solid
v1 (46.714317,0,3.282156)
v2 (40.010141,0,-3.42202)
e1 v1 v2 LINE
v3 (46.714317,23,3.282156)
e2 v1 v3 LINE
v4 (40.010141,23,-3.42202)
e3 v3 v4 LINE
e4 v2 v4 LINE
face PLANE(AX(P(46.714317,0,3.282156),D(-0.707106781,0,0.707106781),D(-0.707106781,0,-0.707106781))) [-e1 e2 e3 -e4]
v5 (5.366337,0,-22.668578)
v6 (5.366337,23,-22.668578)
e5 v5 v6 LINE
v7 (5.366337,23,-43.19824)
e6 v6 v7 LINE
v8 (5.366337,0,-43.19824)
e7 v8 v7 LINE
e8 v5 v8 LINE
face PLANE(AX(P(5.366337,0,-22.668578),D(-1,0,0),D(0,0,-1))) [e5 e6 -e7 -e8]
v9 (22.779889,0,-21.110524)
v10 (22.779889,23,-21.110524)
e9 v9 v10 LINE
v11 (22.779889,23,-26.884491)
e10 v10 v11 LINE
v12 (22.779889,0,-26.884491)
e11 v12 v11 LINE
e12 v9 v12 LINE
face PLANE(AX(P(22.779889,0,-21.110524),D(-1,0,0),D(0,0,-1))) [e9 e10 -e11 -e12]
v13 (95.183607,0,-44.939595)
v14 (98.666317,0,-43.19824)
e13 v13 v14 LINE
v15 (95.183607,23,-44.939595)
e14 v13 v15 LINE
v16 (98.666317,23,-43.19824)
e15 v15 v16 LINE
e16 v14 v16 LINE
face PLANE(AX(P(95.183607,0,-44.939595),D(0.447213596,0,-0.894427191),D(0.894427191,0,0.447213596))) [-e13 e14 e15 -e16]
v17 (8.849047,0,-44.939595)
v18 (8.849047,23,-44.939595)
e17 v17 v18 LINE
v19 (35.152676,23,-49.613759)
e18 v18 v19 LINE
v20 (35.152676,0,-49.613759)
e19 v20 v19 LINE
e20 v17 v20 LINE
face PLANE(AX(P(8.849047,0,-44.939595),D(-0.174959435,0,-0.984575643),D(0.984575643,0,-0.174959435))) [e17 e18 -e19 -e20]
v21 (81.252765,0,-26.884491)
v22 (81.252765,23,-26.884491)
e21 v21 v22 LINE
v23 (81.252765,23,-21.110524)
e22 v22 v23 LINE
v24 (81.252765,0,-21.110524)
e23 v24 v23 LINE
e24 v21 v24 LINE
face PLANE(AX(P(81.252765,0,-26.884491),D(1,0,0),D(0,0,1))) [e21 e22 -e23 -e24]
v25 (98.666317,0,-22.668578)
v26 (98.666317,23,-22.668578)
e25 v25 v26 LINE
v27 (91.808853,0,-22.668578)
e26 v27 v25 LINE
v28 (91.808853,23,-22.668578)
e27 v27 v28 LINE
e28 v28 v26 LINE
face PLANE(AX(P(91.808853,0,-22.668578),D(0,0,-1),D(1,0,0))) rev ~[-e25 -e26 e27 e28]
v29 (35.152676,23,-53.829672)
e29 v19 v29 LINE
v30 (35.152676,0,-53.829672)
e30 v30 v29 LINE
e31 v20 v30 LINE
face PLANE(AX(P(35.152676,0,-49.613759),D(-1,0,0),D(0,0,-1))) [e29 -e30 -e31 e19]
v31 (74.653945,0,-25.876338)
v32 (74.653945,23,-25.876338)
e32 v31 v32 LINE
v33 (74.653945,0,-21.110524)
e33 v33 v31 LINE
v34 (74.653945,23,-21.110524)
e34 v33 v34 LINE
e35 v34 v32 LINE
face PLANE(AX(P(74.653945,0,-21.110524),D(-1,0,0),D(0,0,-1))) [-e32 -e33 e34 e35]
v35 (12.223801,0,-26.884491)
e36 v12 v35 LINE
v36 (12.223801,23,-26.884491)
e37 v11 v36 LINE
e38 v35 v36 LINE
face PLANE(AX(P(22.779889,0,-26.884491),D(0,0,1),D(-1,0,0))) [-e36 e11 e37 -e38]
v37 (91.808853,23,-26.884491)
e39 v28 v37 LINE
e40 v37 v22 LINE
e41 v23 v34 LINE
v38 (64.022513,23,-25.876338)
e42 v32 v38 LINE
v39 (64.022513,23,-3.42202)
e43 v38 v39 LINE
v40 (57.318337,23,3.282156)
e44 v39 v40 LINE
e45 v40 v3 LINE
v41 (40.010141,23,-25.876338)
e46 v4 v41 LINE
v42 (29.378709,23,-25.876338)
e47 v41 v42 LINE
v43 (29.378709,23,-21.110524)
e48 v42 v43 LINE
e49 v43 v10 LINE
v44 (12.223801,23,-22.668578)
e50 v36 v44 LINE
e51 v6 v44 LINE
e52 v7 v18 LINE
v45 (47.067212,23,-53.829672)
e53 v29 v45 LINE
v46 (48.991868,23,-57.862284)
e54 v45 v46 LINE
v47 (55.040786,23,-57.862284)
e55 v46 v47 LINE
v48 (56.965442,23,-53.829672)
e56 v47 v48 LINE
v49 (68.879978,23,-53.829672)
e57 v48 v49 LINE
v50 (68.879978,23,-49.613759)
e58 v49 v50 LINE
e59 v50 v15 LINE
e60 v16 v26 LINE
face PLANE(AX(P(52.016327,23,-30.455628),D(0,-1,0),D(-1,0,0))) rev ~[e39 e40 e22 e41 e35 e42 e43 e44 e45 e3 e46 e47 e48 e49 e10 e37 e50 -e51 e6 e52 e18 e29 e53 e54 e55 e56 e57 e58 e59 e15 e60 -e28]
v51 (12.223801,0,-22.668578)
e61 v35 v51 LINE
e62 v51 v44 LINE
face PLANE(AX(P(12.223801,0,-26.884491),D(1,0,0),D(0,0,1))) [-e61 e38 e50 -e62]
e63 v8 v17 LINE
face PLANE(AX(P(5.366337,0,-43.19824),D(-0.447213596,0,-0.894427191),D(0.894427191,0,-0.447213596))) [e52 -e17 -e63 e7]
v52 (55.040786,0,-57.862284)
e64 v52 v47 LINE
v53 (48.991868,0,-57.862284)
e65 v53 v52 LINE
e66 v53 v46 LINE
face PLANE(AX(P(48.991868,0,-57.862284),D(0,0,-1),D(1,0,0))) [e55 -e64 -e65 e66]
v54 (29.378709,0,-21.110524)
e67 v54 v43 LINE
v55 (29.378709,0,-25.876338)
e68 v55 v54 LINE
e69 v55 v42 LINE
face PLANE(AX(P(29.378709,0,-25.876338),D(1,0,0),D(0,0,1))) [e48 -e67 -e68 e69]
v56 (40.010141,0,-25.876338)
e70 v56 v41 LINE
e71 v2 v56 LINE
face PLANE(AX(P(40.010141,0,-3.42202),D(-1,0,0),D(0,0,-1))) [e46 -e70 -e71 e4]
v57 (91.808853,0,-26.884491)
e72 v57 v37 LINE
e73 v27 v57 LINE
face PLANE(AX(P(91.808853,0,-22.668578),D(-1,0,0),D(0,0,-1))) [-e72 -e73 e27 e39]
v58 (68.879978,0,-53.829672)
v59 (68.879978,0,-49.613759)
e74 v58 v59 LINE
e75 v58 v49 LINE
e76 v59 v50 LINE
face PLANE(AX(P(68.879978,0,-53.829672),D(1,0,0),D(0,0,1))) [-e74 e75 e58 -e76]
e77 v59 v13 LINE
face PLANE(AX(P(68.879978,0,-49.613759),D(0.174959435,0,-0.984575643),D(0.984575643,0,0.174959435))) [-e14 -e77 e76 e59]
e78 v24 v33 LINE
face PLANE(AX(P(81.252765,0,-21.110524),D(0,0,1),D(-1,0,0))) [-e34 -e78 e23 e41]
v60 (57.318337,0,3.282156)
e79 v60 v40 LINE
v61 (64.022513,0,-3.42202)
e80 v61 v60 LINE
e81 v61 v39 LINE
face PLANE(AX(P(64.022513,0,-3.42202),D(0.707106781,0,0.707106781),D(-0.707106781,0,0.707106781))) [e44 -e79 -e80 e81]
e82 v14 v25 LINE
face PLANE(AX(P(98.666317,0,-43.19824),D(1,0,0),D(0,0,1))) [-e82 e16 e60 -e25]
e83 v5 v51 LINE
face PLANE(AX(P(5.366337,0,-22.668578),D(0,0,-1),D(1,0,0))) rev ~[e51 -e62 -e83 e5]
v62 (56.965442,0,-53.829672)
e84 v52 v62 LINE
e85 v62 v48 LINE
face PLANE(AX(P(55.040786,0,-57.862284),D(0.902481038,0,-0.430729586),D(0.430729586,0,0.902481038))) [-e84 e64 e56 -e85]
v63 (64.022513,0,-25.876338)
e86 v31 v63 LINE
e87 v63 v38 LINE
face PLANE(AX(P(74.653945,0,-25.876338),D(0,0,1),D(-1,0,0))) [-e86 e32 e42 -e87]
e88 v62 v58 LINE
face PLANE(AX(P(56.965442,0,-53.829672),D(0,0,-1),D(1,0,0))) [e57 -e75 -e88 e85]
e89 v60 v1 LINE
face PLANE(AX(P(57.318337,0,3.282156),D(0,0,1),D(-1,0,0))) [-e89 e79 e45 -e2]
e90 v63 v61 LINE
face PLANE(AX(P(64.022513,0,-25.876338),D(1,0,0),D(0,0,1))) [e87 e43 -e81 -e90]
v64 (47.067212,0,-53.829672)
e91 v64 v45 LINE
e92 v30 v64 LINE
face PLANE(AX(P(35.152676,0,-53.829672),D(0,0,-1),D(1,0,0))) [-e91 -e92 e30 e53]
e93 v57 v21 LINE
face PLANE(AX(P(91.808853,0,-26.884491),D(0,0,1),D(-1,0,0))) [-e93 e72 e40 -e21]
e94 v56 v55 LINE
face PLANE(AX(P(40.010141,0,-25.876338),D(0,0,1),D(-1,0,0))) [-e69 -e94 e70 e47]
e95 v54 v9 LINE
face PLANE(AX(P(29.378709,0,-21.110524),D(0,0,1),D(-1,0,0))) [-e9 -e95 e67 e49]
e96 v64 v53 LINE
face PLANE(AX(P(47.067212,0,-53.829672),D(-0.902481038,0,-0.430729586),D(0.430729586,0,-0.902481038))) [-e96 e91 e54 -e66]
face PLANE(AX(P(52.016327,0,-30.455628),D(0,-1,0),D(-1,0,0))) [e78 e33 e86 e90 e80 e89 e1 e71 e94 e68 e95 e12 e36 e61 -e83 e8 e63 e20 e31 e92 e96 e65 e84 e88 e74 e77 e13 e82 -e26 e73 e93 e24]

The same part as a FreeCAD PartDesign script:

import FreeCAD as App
import Part
import Sketcher
from FreeCAD import Vector
Q = App.Units.Quantity

doc = App.newDocument("Part")
params = doc.addObject("Spreadsheet::Sheet", "Params")
for row, (alias, value) in enumerate([
    ("pad1_length", "23 mm"),
], start=1):
    params.set(f"A{row}", alias)
    params.set(f"B{row}", "=" + value)
    params.setAlias(f"B{row}", alias)

body = doc.addObject("PartDesign::Body", "Body")

# Sketch on XZ plane
sketch1 = doc.addObject("Sketcher::SketchObject", "Sketch")
body.addObject(sketch1)
sketch1.AttachmentSupport = (doc.XZ_Plane, [""])
sketch1.MapMode = "FlatFace"
sketch1.addGeometry([
    Part.LineSegment(Vector(8.8, -44.9, 0), Vector(5.4, -43.2, 0)),  # 0
    Part.LineSegment(Vector(5.4, -43.2, 0), Vector(5.4, -22.7, 0)),  # 1
    Part.LineSegment(Vector(5.4, -22.7, 0), Vector(12.2, -22.7, 0)),  # 2
    Part.LineSegment(Vector(12.2, -22.7, 0), Vector(12.2, -26.9, 0)),  # 3
    Part.LineSegment(Vector(12.2, -26.9, 0), Vector(22.8, -26.9, 0)),  # 4
    Part.LineSegment(Vector(22.8, -26.9, 0), Vector(22.8, -21.1, 0)),  # 5
    Part.LineSegment(Vector(22.8, -21.1, 0), Vector(29.4, -21.1, 0)),  # 6
    Part.LineSegment(Vector(29.4, -21.1, 0), Vector(29.4, -25.9, 0)),  # 7
    Part.LineSegment(Vector(29.4, -25.9, 0), Vector(40, -25.9, 0)),  # 8
    Part.LineSegment(Vector(40, -25.9, 0), Vector(40, -3.4, 0)),  # 9
    Part.LineSegment(Vector(40, -3.4, 0), Vector(46.7, 3.3, 0)),  # 10
    Part.LineSegment(Vector(46.7, 3.3, 0), Vector(57.3, 3.3, 0)),  # 11
    Part.LineSegment(Vector(57.3, 3.3, 0), Vector(64, -3.4, 0)),  # 12
    Part.LineSegment(Vector(64, -3.4, 0), Vector(64, -25.9, 0)),  # 13
    Part.LineSegment(Vector(64, -25.9, 0), Vector(74.7, -25.9, 0)),  # 14
    Part.LineSegment(Vector(74.7, -25.9, 0), Vector(74.7, -21.1, 0)),  # 15
    Part.LineSegment(Vector(74.7, -21.1, 0), Vector(81.3, -21.1, 0)),  # 16
    Part.LineSegment(Vector(81.3, -21.1, 0), Vector(81.3, -26.9, 0)),  # 17
    Part.LineSegment(Vector(81.3, -26.9, 0), Vector(91.8, -26.9, 0)),  # 18
    Part.LineSegment(Vector(91.8, -26.9, 0), Vector(91.8, -22.7, 0)),  # 19
    Part.LineSegment(Vector(91.8, -22.7, 0), Vector(98.7, -22.7, 0)),  # 20
    Part.LineSegment(Vector(98.7, -22.7, 0), Vector(98.7, -43.2, 0)),  # 21
    Part.LineSegment(Vector(98.7, -43.2, 0), Vector(95.2, -44.9, 0)),  # 22
    Part.LineSegment(Vector(95.2, -44.9, 0), Vector(68.9, -49.6, 0)),  # 23
    Part.LineSegment(Vector(68.9, -49.6, 0), Vector(68.9, -53.8, 0)),  # 24
    Part.LineSegment(Vector(68.9, -53.8, 0), Vector(57, -53.8, 0)),  # 25
    Part.LineSegment(Vector(57, -53.8, 0), Vector(55, -57.9, 0)),  # 26
    Part.LineSegment(Vector(55, -57.9, 0), Vector(49, -57.9, 0)),  # 27
    Part.LineSegment(Vector(49, -57.9, 0), Vector(47.1, -53.8, 0)),  # 28
    Part.LineSegment(Vector(47.1, -53.8, 0), Vector(35.2, -53.8, 0)),  # 29
    Part.LineSegment(Vector(35.2, -53.8, 0), Vector(35.2, -49.6, 0)),  # 30
    Part.LineSegment(Vector(35.2, -49.6, 0), Vector(8.8, -44.9, 0)),  # 31
], False)
sketch1.addConstraint([
    Sketcher.Constraint("Coincident", 0, 2, 1, 1),
    Sketcher.Constraint("Coincident", 1, 2, 2, 1),
    Sketcher.Constraint("Coincident", 2, 2, 3, 1),
    Sketcher.Constraint("Coincident", 3, 2, 4, 1),
    Sketcher.Constraint("Coincident", 4, 2, 5, 1),
    Sketcher.Constraint("Coincident", 5, 2, 6, 1),
    Sketcher.Constraint("Coincident", 6, 2, 7, 1),
    Sketcher.Constraint("Coincident", 7, 2, 8, 1),
    Sketcher.Constraint("Coincident", 8, 2, 9, 1),
    Sketcher.Constraint("Coincident", 9, 2, 10, 1),
    Sketcher.Constraint("Coincident", 10, 2, 11, 1),
    Sketcher.Constraint("Coincident", 11, 2, 12, 1),
    Sketcher.Constraint("Coincident", 12, 2, 13, 1),
    Sketcher.Constraint("Coincident", 13, 2, 14, 1),
    Sketcher.Constraint("Coincident", 14, 2, 15, 1),
    Sketcher.Constraint("Coincident", 15, 2, 16, 1),
    Sketcher.Constraint("Coincident", 16, 2, 17, 1),
    Sketcher.Constraint("Coincident", 17, 2, 18, 1),
    Sketcher.Constraint("Coincident", 18, 2, 19, 1),
    Sketcher.Constraint("Coincident", 19, 2, 20, 1),
    Sketcher.Constraint("Coincident", 20, 2, 21, 1),
    Sketcher.Constraint("Coincident", 21, 2, 22, 1),
    Sketcher.Constraint("Coincident", 22, 2, 23, 1),
    Sketcher.Constraint("Coincident", 23, 2, 24, 1),
    Sketcher.Constraint("Coincident", 24, 2, 25, 1),
    Sketcher.Constraint("Coincident", 25, 2, 26, 1),
    Sketcher.Constraint("Coincident", 26, 2, 27, 1),
    Sketcher.Constraint("Coincident", 27, 2, 28, 1),
    Sketcher.Constraint("Coincident", 28, 2, 29, 1),
    Sketcher.Constraint("Coincident", 29, 2, 30, 1),
    Sketcher.Constraint("Coincident", 30, 2, 31, 1),
    Sketcher.Constraint("Coincident", 31, 2, 0, 1),
    Sketcher.Constraint("Vertical", 1),
    Sketcher.Constraint("Horizontal", 2),
    Sketcher.Constraint("Vertical", 3),
    Sketcher.Constraint("Horizontal", 4),
    Sketcher.Constraint("Vertical", 5),
    Sketcher.Constraint("Horizontal", 6),
    Sketcher.Constraint("Vertical", 7),
    Sketcher.Constraint("Horizontal", 8),
    Sketcher.Constraint("Vertical", 9),
    Sketcher.Constraint("Horizontal", 11),
    Sketcher.Constraint("Vertical", 13),
    Sketcher.Constraint("Horizontal", 14),
    Sketcher.Constraint("Vertical", 15),
    Sketcher.Constraint("Horizontal", 16),
    Sketcher.Constraint("Vertical", 17),
    Sketcher.Constraint("Horizontal", 18),
    Sketcher.Constraint("Vertical", 19),
    Sketcher.Constraint("Horizontal", 20),
    Sketcher.Constraint("Vertical", 21),
    Sketcher.Constraint("Vertical", 24),
    Sketcher.Constraint("Horizontal", 25),
    Sketcher.Constraint("Horizontal", 27),
    Sketcher.Constraint("Horizontal", 29),
    Sketcher.Constraint("Vertical", 30),
    Sketcher.Constraint("Perpendicular", 10, 12),
    Sketcher.Constraint("Horizontal", 9, 2, 12, 2),
    Sketcher.Constraint("Horizontal", 8, 2, 13, 2),
    Sketcher.Constraint("Horizontal", 6, 2, 15, 2),
    Sketcher.Constraint("Horizontal", 4, 2, 17, 2),
    Sketcher.Constraint("Horizontal", 2, 2, 19, 2),
    Sketcher.Constraint("Horizontal", 0, 2, 21, 2),
    Sketcher.Constraint("Horizontal", 25, 2, 28, 2),
    Sketcher.Constraint("Horizontal", 23, 2, 30, 2),
    Sketcher.Constraint("Horizontal", 22, 2, 31, 2),
    Sketcher.Constraint("Equal", 8, 14),
    Sketcher.Constraint("Equal", 6, 16),
    Sketcher.Constraint("Equal", 4, 18),
    Sketcher.Constraint("Equal", 2, 20),
    Sketcher.Constraint("Equal", 25, 29),
    Sketcher.Constraint("Equal", 19, 24),
    Sketcher.Constraint("Equal", 10, 12),
    Sketcher.Constraint("Equal", 0, 22),
    Sketcher.Constraint("Equal", 26, 28),
    Sketcher.Constraint("Equal", 23, 31),
    Sketcher.Constraint("Distance", 23, Q("26.715702 mm")),
    Sketcher.Constraint("DistanceX", 6, 1, 6, 2, Q("6.59882 mm")),
    Sketcher.Constraint("DistanceX", 8, 1, 8, 2, Q("10.631432 mm")),
    Sketcher.Constraint("DistanceX", 11, 1, 11, 2, Q("10.604019 mm")),
    Sketcher.Constraint("DistanceX", 27, 2, 27, 1, Q("6.048918 mm")),
    Sketcher.Constraint("DistanceY", 1, 1, 1, 2, Q("20.529662 mm")),
    Sketcher.Constraint("DistanceX", -1, 1, 2, 2, Q("12.223801 mm")),
    Sketcher.Constraint("DistanceX", 8, 2, 25, 2, Q("16.955301 mm")),
    Sketcher.Constraint("Distance", 0, Q("3.893789 mm")),
    Sketcher.Constraint("DistanceX", 2, 1, 2, 2, Q("6.857465 mm")),
    Sketcher.Constraint("DistanceX", 4, 1, 4, 2, Q("10.556088 mm")),
    Sketcher.Constraint("DistanceX", 25, 2, 25, 1, Q("11.914536 mm")),
    Sketcher.Constraint("DistanceY", 3, 2, 3, 1, Q("4.215913 mm")),
    Sketcher.Constraint("DistanceY", 5, 1, 5, 2, Q("5.773967 mm")),
    Sketcher.Constraint("DistanceY", 7, 2, 7, 1, Q("4.765814 mm")),
    Sketcher.Constraint("DistanceY", 9, 1, 9, 2, Q("22.454318 mm")),
    Sketcher.Constraint("DistanceY", 0, 2, -1, 1, Q("43.19824 mm")),
    Sketcher.Constraint("DistanceY", 23, 2, -1, 1, Q("49.613759 mm")),
    Sketcher.Constraint("DistanceX", -1, 1, 28, 2, Q("47.067212 mm")),
    Sketcher.Constraint("Distance", 26, Q("4.468362 mm")),
])
pad1 = doc.addObject("PartDesign::Pad", "Pad")
body.addObject(pad1)
pad1.Profile = sketch1
pad1.setExpression("Length", "Params.pad1_length")
pad1.Reversed = True

doc.recompute()
